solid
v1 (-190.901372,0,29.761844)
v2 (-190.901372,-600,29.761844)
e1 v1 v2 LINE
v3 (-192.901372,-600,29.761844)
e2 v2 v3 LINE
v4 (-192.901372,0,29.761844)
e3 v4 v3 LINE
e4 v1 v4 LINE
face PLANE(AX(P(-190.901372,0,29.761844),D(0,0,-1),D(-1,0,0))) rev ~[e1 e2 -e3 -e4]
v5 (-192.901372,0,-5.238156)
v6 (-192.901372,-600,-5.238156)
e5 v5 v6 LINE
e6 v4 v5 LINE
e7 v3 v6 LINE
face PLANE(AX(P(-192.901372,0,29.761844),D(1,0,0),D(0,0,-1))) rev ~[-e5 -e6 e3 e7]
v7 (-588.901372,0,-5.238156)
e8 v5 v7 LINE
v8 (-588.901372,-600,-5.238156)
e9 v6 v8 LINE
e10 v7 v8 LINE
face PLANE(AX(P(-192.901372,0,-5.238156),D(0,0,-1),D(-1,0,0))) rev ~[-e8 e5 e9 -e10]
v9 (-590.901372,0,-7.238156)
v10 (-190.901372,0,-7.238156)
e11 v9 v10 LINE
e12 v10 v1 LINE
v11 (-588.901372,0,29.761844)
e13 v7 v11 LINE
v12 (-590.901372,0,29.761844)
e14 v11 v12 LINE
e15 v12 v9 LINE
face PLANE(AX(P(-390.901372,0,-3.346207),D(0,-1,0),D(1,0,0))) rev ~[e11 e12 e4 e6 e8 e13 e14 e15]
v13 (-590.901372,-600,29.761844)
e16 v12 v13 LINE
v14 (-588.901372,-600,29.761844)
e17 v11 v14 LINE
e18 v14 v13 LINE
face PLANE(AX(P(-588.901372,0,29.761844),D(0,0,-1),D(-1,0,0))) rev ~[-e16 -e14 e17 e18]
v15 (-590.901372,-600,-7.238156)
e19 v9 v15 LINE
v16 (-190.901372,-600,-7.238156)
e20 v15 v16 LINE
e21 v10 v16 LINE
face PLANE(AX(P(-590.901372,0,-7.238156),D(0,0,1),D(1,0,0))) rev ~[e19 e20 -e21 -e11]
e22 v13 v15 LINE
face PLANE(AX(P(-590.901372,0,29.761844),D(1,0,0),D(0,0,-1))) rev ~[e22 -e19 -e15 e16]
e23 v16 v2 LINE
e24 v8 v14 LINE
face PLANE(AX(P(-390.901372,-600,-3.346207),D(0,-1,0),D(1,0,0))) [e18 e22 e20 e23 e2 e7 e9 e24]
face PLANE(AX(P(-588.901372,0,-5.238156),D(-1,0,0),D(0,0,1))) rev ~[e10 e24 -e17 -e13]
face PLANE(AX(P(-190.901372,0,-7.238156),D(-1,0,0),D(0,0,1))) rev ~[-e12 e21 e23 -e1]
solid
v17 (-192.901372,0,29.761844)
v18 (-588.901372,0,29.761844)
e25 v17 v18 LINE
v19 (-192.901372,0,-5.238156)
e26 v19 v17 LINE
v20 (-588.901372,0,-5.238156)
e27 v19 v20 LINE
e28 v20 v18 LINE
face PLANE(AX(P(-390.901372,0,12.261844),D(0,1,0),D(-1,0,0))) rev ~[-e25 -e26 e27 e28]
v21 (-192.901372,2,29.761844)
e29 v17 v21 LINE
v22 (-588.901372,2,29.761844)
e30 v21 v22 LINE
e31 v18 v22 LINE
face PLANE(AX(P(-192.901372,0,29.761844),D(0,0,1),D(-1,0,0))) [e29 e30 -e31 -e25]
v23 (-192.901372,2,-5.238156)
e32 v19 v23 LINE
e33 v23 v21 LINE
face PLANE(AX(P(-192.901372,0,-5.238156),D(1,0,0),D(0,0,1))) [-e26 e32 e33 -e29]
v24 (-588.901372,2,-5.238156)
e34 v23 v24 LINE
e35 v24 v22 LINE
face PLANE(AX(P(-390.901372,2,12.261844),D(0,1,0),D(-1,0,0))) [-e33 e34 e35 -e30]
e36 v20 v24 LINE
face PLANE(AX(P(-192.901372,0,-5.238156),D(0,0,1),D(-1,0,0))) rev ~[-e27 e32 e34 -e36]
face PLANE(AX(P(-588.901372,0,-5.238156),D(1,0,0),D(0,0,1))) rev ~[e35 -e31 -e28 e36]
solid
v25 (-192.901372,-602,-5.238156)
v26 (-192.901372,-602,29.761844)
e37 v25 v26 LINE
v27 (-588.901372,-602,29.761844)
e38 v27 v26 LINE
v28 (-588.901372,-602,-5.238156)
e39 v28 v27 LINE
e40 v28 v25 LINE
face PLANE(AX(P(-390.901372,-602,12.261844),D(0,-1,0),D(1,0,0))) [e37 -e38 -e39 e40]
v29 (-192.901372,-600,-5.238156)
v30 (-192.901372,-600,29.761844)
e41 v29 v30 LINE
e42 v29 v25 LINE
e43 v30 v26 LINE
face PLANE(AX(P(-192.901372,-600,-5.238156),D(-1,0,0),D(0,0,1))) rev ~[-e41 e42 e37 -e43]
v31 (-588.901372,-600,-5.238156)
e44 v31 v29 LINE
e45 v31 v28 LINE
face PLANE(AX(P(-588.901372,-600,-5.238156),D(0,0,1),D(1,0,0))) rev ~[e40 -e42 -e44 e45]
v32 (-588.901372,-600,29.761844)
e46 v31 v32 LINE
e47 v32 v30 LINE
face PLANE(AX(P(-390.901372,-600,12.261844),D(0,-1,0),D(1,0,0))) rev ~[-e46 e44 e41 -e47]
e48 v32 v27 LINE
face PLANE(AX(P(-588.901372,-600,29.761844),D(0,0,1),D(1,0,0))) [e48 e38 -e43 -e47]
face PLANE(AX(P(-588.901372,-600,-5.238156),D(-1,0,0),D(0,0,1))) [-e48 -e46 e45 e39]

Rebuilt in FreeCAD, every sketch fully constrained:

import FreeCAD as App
import Part
import Sketcher

V = App.Vector
Q = App.Units.Quantity

doc = App.newDocument("Part")
params = doc.addObject("Spreadsheet::Sheet", "Params")
for row, (alias, value) in enumerate([
    ("sketch1_width", "396 mm"),
    ("sketch1_width2", "2 mm"),
    ("sketch1_height", "35 mm"),
    ("sketch1_height2", "37 mm"),
    ("pad1_length", "600 mm"),
    ("sketch2_width", "396 mm"),
    ("sketch2_height", "35 mm"),
    ("pad2_length", "2 mm"),
    ("sketch3_width", "396 mm"),
    ("sketch3_height", "35 mm"),
    ("pad3_length", "2 mm"),
], start=1):
    params.set(f"A{row}", alias)
    params.set(f"B{row}", "=" + value)
    params.setAlias(f"B{row}", alias)

body = doc.addObject("PartDesign::Body", "Body")

sketch1 = body.newObject("Sketcher::SketchObject", "Sketch")
sketch1.AttachmentSupport = (doc.getObject("XZ_Plane"), [""])
sketch1.MapMode = "FlatFace"
sketch1.addGeometry(Part.LineSegment(V(-192.9, -5.2, 0), V(-588.9, -5.2, 0)), False)
sketch1.addGeometry(Part.LineSegment(V(-588.9, -5.2, 0), V(-588.9, 29.8, 0)), False)
sketch1.addGeometry(Part.LineSegment(V(-588.9, 29.8, 0), V(-590.9, 29.8, 0)), False)
sketch1.addGeometry(Part.LineSegment(V(-590.9, 29.8, 0), V(-590.9, -7.2, 0)), False)
sketch1.addGeometry(Part.LineSegment(V(-590.9, -7.2, 0), V(-190.9, -7.2, 0)), False)
sketch1.addGeometry(Part.LineSegment(V(-190.9, -7.2, 0), V(-190.9, 29.8, 0)), False)
sketch1.addGeometry(Part.LineSegment(V(-190.9, 29.8, 0), V(-192.9, 29.8, 0)), False)
sketch1.addGeometry(Part.LineSegment(V(-192.9, 29.8, 0), V(-192.9, -5.2, 0)), False)
sketch1.addConstraint(Sketcher.Constraint("Coincident", 0, 2, 1, 1))
sketch1.addConstraint(Sketcher.Constraint("Coincident", 1, 2, 2, 1))
sketch1.addConstraint(Sketcher.Constraint("Coincident", 2, 2, 3, 1))
sketch1.addConstraint(Sketcher.Constraint("Coincident", 3, 2, 4, 1))
sketch1.addConstraint(Sketcher.Constraint("Coincident", 4, 2, 5, 1))
sketch1.addConstraint(Sketcher.Constraint("Coincident", 5, 2, 6, 1))
sketch1.addConstraint(Sketcher.Constraint("Coincident", 6, 2, 7, 1))
sketch1.addConstraint(Sketcher.Constraint("Coincident", 7, 2, 0, 1))
sketch1.addConstraint(Sketcher.Constraint("Horizontal", 0))
sketch1.addConstraint(Sketcher.Constraint("Vertical", 1))
sketch1.addConstraint(Sketcher.Constraint("Horizontal", 2))
sketch1.addConstraint(Sketcher.Constraint("Vertical", 3))
sketch1.addConstraint(Sketcher.Constraint("Horizontal", 4))
sketch1.addConstraint(Sketcher.Constraint("Vertical", 5))
sketch1.addConstraint(Sketcher.Constraint("Horizontal", 6))
sketch1.addConstraint(Sketcher.Constraint("Vertical", 7))
sketch1.addConstraint(Sketcher.Constraint("Horizontal", 2, 2, 5, 2))
sketch1.addConstraint(Sketcher.Constraint("Equal", 2, 6))
sketch1.addConstraint(Sketcher.Constraint("DistanceX", 0, 2, 0, 1, Q("396 mm")))
sketch1.addConstraint(Sketcher.Constraint("DistanceX", 2, 2, 2, 1, Q("2 mm")))
sketch1.addConstraint(Sketcher.Constraint("DistanceY", 1, 1, 1, 2, Q("35 mm")))
sketch1.addConstraint(Sketcher.Constraint("DistanceY", 3, 2, 3, 1, Q("37 mm")))
sketch1.addConstraint(Sketcher.Constraint("DistanceX", 0, 2, -1, 1, Q("588.901372 mm")))
sketch1.addConstraint(Sketcher.Constraint("DistanceY", 0, 2, -1, 1, Q("5.238156 mm")))
sketch1.setExpression("Constraints[18]", "Params.sketch1_width")
sketch1.setExpression("Constraints[19]", "Params.sketch1_width2")
sketch1.setExpression("Constraints[20]", "Params.sketch1_height")
sketch1.setExpression("Constraints[21]", "Params.sketch1_height2")
pad1 = body.newObject("PartDesign::Pad", "Pad")
pad1.Profile = sketch1
pad1.setExpression("Length", "Params.pad1_length")
body2 = doc.addObject("PartDesign::Body", "Body001")

sketch2 = body2.newObject("Sketcher::SketchObject", "Sketch001")
sketch2.AttachmentSupport = (doc.getObject("XZ_Plane001"), [""])
sketch2.MapMode = "FlatFace"
sketch2.AttachmentOffset = App.Placement(V(0, 0, 600), App.Rotation())
sketch2.addGeometry(Part.LineSegment(V(-589, 30, 0), V(-589, -5, 0)), False)
sketch2.addGeometry(Part.LineSegment(V(-589, -5, 0), V(-193, -5, 0)), False)
sketch2.addGeometry(Part.LineSegment(V(-193, -5, 0), V(-193, 30, 0)), False)
sketch2.addGeometry(Part.LineSegment(V(-193, 30, 0), V(-589, 30, 0)), False)
sketch2.addConstraint(Sketcher.Constraint("Coincident", 0, 2, 1, 1))
sketch2.addConstraint(Sketcher.Constraint("Coincident", 1, 2, 2, 1))
sketch2.addConstraint(Sketcher.Constraint("Coincident", 2, 2, 3, 1))
sketch2.addConstraint(Sketcher.Constraint("Coincident", 3, 2, 0, 1))
sketch2.addConstraint(Sketcher.Constraint("Vertical", 0))
sketch2.addConstraint(Sketcher.Constraint("Horizontal", 1))
sketch2.addConstraint(Sketcher.Constraint("Vertical", 2))
sketch2.addConstraint(Sketcher.Constraint("Horizontal", 3))
sketch2.addConstraint(Sketcher.Constraint("DistanceX", 1, 1, 1, 2, Q("396 mm")))
sketch2.addConstraint(Sketcher.Constraint("DistanceY", 0, 2, 0, 1, Q("35 mm")))
sketch2.addConstraint(Sketcher.Constraint("DistanceX", 0, 2, -1, 1, Q("588.901372 mm")))
sketch2.addConstraint(Sketcher.Constraint("DistanceY", 0, 2, -1, 1, Q("5.238156 mm")))
sketch2.setExpression("Constraints[8]", "Params.sketch2_width")
sketch2.setExpression("Constraints[9]", "Params.sketch2_height")
pad2 = body2.newObject("PartDesign::Pad", "Pad001")
pad2.Profile = sketch2
pad2.setExpression("Length", "Params.pad2_length")
body3 = doc.addObject("PartDesign::Body", "Body002")

sketch3 = body3.newObject("Sketcher::SketchObject", "Sketch002")
sketch3.AttachmentSupport = (doc.getObject("XZ_Plane002"), [""])
sketch3.MapMode = "FlatFace"
sketch3.addGeometry(Part.LineSegment(V(-193, 30, 0), V(-193, -5, 0)), False)
sketch3.addGeometry(Part.LineSegment(V(-193, -5, 0), V(-589, -5, 0)), False)
sketch3.addGeometry(Part.LineSegment(V(-589, -5, 0), V(-589, 30, 0)), False)
sketch3.addGeometry(Part.LineSegment(V(-589, 30, 0), V(-193, 30, 0)), False)
sketch3.addConstraint(Sketcher.Constraint("Coincident", 0, 2, 1, 1))
sketch3.addConstraint(Sketcher.Constraint("Coincident", 1, 2, 2, 1))
sketch3.addConstraint(Sketcher.Constraint("Coincident", 2, 2, 3, 1))
sketch3.addConstraint(Sketcher.Constraint("Coincident", 3, 2, 0, 1))
sketch3.addConstraint(Sketcher.Constraint("Vertical", 0))
sketch3.addConstraint(Sketcher.Constraint("Horizontal", 1))
sketch3.addConstraint(Sketcher.Constraint("Vertical", 2))
sketch3.addConstraint(Sketcher.Constraint("Horizontal", 3))
sketch3.addConstraint(Sketcher.Constraint("DistanceX", 1, 2, 1, 1, Q("396 mm")))
sketch3.addConstraint(Sketcher.Constraint("DistanceY", 0, 2, 0, 1, Q("35 mm")))
sketch3.addConstraint(Sketcher.Constraint("DistanceX", 0, 2, -1, 1, Q("192.901372 mm")))
sketch3.addConstraint(Sketcher.Constraint("DistanceY", 0, 2, -1, 1, Q("5.238156 mm")))
sketch3.setExpression("Constraints[8]", "Params.sketch3_width")
sketch3.setExpression("Constraints[9]", "Params.sketch3_height")
pad3 = body3.newObject("PartDesign::Pad", "Pad002")
pad3.Profile = sketch3
pad3.setExpression("Length", "Params.pad3_length")
pad3.Reversed = True

doc.recompute()
